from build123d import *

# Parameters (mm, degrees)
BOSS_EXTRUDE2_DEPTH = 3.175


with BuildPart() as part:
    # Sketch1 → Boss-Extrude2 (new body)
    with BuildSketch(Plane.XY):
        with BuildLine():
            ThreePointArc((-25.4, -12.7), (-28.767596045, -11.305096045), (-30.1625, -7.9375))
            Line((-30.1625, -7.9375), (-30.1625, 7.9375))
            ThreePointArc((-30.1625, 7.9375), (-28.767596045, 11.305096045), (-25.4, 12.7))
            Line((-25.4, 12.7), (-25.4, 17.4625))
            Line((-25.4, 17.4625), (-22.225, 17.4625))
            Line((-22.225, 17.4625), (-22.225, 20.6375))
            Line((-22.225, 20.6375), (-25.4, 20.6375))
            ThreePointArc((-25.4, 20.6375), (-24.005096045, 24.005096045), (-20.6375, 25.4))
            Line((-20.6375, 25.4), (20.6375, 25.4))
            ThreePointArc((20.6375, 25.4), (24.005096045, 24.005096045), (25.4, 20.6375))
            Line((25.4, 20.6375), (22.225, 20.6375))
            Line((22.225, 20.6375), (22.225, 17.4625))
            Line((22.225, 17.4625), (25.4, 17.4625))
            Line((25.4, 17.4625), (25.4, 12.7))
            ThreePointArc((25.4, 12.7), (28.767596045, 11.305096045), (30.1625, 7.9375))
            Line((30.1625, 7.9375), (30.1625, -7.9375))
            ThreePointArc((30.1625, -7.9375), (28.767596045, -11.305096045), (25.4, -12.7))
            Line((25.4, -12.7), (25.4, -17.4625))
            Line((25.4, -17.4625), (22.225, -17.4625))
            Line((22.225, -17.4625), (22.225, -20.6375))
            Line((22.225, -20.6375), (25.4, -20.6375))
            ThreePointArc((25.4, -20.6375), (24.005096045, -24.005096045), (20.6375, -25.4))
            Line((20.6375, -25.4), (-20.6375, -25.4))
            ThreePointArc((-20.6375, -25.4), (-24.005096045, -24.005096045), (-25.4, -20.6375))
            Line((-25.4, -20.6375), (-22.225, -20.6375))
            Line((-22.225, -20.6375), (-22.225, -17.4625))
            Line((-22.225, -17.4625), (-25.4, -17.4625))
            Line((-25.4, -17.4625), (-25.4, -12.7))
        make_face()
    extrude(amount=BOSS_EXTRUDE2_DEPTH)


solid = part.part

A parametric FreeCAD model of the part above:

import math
import FreeCAD as App
import Part
import Sketcher
Q = App.Units.Quantity

doc = App.newDocument("Part")
body = doc.addObject("PartDesign::Body", "Body")

# Sketch on XY plane
sketch1 = body.newObject("Sketcher::SketchObject", "Sketch")
sketch1.AttachmentSupport = (doc.getObject("XY_Plane"), [""])
sketch1.MapMode = "FlatFace"
sketch1.addGeometry(Part.ArcOfCircle(Part.Circle(App.Vector(-25.4, -7.9, 0), App.Vector(0, 0, 1), 4.8), math.radians(-180), math.radians(-90)), False)
sketch1.addGeometry(Part.LineSegment(App.Vector(-25.4, -12.7, 0), App.Vector(-25.4, -17.5, 0)), False)
sketch1.addGeometry(Part.LineSegment(App.Vector(-25.4, -17.5, 0), App.Vector(-22.2, -17.5, 0)), False)
sketch1.addGeometry(Part.LineSegment(App.Vector(-22.2, -17.5, 0), App.Vector(-22.2, -20.6, 0)), False)
sketch1.addGeometry(Part.LineSegment(App.Vector(-22.2, -20.6, 0), App.Vector(-25.4, -20.6, 0)), False)
sketch1.addGeometry(Part.ArcOfCircle(Part.Circle(App.Vector(-20.6, -20.6, 0), App.Vector(0, 0, 1), 4.8), math.radians(-180), math.radians(-90)), False)
sketch1.addGeometry(Part.LineSegment(App.Vector(-20.6, -25.4, 0), App.Vector(20.6, -25.4, 0)), False)
sketch1.addGeometry(Part.ArcOfCircle(Part.Circle(App.Vector(20.6, -20.6, 0), App.Vector(0, 0, 1), 4.8), math.radians(-90), math.radians(0)), False)
sketch1.addGeometry(Part.LineSegment(App.Vector(25.4, -20.6, 0), App.Vector(22.2, -20.6, 0)), False)
sketch1.addGeometry(Part.LineSegment(App.Vector(22.2, -20.6, 0), App.Vector(22.2, -17.5, 0)), False)
sketch1.addGeometry(Part.LineSegment(App.Vector(22.2, -17.5, 0), App.Vector(25.4, -17.5, 0)), False)
sketch1.addGeometry(Part.LineSegment(App.Vector(25.4, -17.5, 0), App.Vector(25.4, -12.7, 0)), False)
sketch1.addGeometry(Part.ArcOfCircle(Part.Circle(App.Vector(25.4, -7.9, 0), App.Vector(0, 0, 1), 4.8), math.radians(-90), math.radians(0)), False)
sketch1.addGeometry(Part.LineSegment(App.Vector(30.2, -7.9, 0), App.Vector(30.2, 7.9, 0)), False)
sketch1.addGeometry(Part.ArcOfCircle(Part.Circle(App.Vector(25.4, 7.9, 0), App.Vector(0, 0, 1), 4.8), math.radians(0), math.radians(90)), False)
sketch1.addGeometry(Part.LineSegment(App.Vector(25.4, 12.7, 0), App.Vector(25.4, 17.5, 0)), False)
sketch1.addGeometry(Part.LineSegment(App.Vector(25.4, 17.5, 0), App.Vector(22.2, 17.5, 0)), False)
sketch1.addGeometry(Part.LineSegment(App.Vector(22.2, 17.5, 0), App.Vector(22.2, 20.6, 0)), False)
sketch1.addGeometry(Part.LineSegment(App.Vector(22.2, 20.6, 0), App.Vector(25.4, 20.6, 0)), False)
sketch1.addGeometry(Part.ArcOfCircle(Part.Circle(App.Vector(20.6, 20.6, 0), App.Vector(0, 0, 1), 4.8), math.radians(0), math.radians(90)), False)
sketch1.addGeometry(Part.LineSegment(App.Vector(20.6, 25.4, 0), App.Vector(-20.6, 25.4, 0)), False)
sketch1.addGeometry(Part.ArcOfCircle(Part.Circle(App.Vector(-20.6, 20.6, 0), App.Vector(0, 0, 1), 4.8), math.radians(90), math.radians(180)), False)
sketch1.addGeometry(Part.LineSegment(App.Vector(-25.4, 20.6, 0), App.Vector(-22.2, 20.6, 0)), False)
sketch1.addGeometry(Part.LineSegment(App.Vector(-22.2, 20.6, 0), App.Vector(-22.2, 17.5, 0)), False)
sketch1.addGeometry(Part.LineSegment(App.Vector(-22.2, 17.5, 0), App.Vector(-25.4, 17.5, 0)), False)
sketch1.addGeometry(Part.LineSegment(App.Vector(-25.4, 17.5, 0), App.Vector(-25.4, 12.7, 0)), False)
sketch1.addGeometry(Part.ArcOfCircle(Part.Circle(App.Vector(-25.4, 7.9, 0), App.Vector(0, 0, 1), 4.8), math.radians(90), math.radians(180)), False)
sketch1.addGeometry(Part.LineSegment(App.Vector(-30.2, 7.9, 0), App.Vector(-30.2, -7.9, 0)), False)
sketch1.addConstraint(Sketcher.Constraint("Coincident", 0, 2, 1, 1))
sketch1.addConstraint(Sketcher.Constraint("Coincident", 1, 2, 2, 1))
sketch1.addConstraint(Sketcher.Constraint("Coincident", 2, 2, 3, 1))
sketch1.addConstraint(Sketcher.Constraint("Coincident", 3, 2, 4, 1))
sketch1.addConstraint(Sketcher.Constraint("Coincident", 4, 2, 5, 1))
sketch1.addConstraint(Sketcher.Constraint("Tangent", 5, 2, 6, 1))
sketch1.addConstraint(Sketcher.Constraint("Tangent", 6, 2, 7, 1))
sketch1.addConstraint(Sketcher.Constraint("Coincident", 7, 2, 8, 1))
sketch1.addConstraint(Sketcher.Constraint("Coincident", 8, 2, 9, 1))
sketch1.addConstraint(Sketcher.Constraint("Coincident", 9, 2, 10, 1))
sketch1.addConstraint(Sketcher.Constraint("Coincident", 10, 2, 11, 1))
sketch1.addConstraint(Sketcher.Constraint("Coincident", 11, 2, 12, 1))
sketch1.addConstraint(Sketcher.Constraint("Tangent", 12, 2, 13, 1))
sketch1.addConstraint(Sketcher.Constraint("Tangent", 13, 2, 14, 1))
sketch1.addConstraint(Sketcher.Constraint("Coincident", 14, 2, 15, 1))
sketch1.addConstraint(Sketcher.Constraint("Coincident", 15, 2, 16, 1))
sketch1.addConstraint(Sketcher.Constraint("Coincident", 16, 2, 17, 1))
sketch1.addConstraint(Sketcher.Constraint("Coincident", 17, 2, 18, 1))
sketch1.addConstraint(Sketcher.Constraint("Coincident", 18, 2, 19, 1))
sketch1.addConstraint(Sketcher.Constraint("Tangent", 19, 2, 20, 1))
sketch1.addConstraint(Sketcher.Constraint("Tangent", 20, 2, 21, 1))
sketch1.addConstraint(Sketcher.Constraint("Coincident", 21, 2, 22, 1))
sketch1.addConstraint(Sketcher.Constraint("Coincident", 22, 2, 23, 1))
sketch1.addConstraint(Sketcher.Constraint("Coincident", 23, 2, 24, 1))
sketch1.addConstraint(Sketcher.Constraint("Coincident", 24, 2, 25, 1))
sketch1.addConstraint(Sketcher.Constraint("Coincident", 25, 2, 26, 1))
sketch1.addConstraint(Sketcher.Constraint("Tangent", 26, 2, 27, 1))
sketch1.addConstraint(Sketcher.Constraint("Tangent", 27, 2, 0, 1))
sketch1.addConstraint(Sketcher.Constraint("Vertical", 1))
sketch1.addConstraint(Sketcher.Constraint("Horizontal", 2))
sketch1.addConstraint(Sketcher.Constraint("Vertical", 3))
sketch1.addConstraint(Sketcher.Constraint("Horizontal", 4))
sketch1.addConstraint(Sketcher.Constraint("Horizontal", 6))
sketch1.addConstraint(Sketcher.Constraint("Horizontal", 8))
sketch1.addConstraint(Sketcher.Constraint("Vertical", 9))
sketch1.addConstraint(Sketcher.Constraint("Horizontal", 10))
sketch1.addConstraint(Sketcher.Constraint("Vertical", 11))
sketch1.addConstraint(Sketcher.Constraint("Vertical", 13))
sketch1.addConstraint(Sketcher.Constraint("Vertical", 15))
sketch1.addConstraint(Sketcher.Constraint("Horizontal", 16))
sketch1.addConstraint(Sketcher.Constraint("Vertical", 17))
sketch1.addConstraint(Sketcher.Constraint("Horizontal", 18))
sketch1.addConstraint(Sketcher.Constraint("Horizontal", 20))
sketch1.addConstraint(Sketcher.Constraint("Horizontal", 22))
sketch1.addConstraint(Sketcher.Constraint("Vertical", 23))
sketch1.addConstraint(Sketcher.Constraint("Horizontal", 24))
sketch1.addConstraint(Sketcher.Constraint("Vertical", 25))
sketch1.addConstraint(Sketcher.Constraint("Vertical", 27))
sketch1.addConstraint(Sketcher.Constraint("Equal", 0, 5))
sketch1.addConstraint(Sketcher.Constraint("Equal", 5, 7))
sketch1.addConstraint(Sketcher.Constraint("Equal", 7, 12))
sketch1.addConstraint(Sketcher.Constraint("Equal", 12, 14))
sketch1.addConstraint(Sketcher.Constraint("Equal", 14, 19))
sketch1.addConstraint(Sketcher.Constraint("Equal", 19, 21))
sketch1.addConstraint(Sketcher.Constraint("Equal", 21, 26))
sketch1.addConstraint(Sketcher.Constraint("Symmetric", 0, 3, 14, 3, -1, 1))
sketch1.addConstraint(Sketcher.Constraint("Symmetric", 5, 3, 19, 3, -1, 1))
sketch1.addConstraint(Sketcher.Constraint("Symmetric", 1, 2, 15, 2, -1, 1))
sketch1.addConstraint(Sketcher.Constraint("Symmetric", 3, 2, 17, 2, -1, 1))
sketch1.addConstraint(Sketcher.Constraint("Symmetric", 7, 2, 21, 2, -1, 1))
sketch1.addConstraint(Sketcher.Constraint("Symmetric", 9, 2, 23, 2, -1, 1))
sketch1.addConstraint(Sketcher.Constraint("Symmetric", 11, 2, 25, 2, -1, 1))
sketch1.addConstraint(Sketcher.Constraint("Symmetric", 4, 2, 7, 2, -2))
sketch1.addConstraint(Sketcher.Constraint("Symmetric", 2, 2, 9, 2, -2))
sketch1.addConstraint(Sketcher.Constraint("Symmetric", 0, 2, 11, 2, -2))
sketch1.addConstraint(Sketcher.Constraint("Horizontal", 7, 3, 3, 2))
sketch1.addConstraint(Sketcher.Constraint("Vertical", 26, 3, 0, 2))
sketch1.addConstraint(Sketcher.Constraint("Vertical", 1, 2, 4, 2))
sketch1.addConstraint(Sketcher.Constraint("Equal", 24, 3))
sketch1.addConstraint(Sketcher.Constraint("DistanceX", 0, 3, -1, 1, Q("1 in")))
sketch1.addConstraint(Sketcher.Constraint("DistanceY", 5, 2, -1, 1, Q("1 in")))
sketch1.addConstraint(Sketcher.Constraint("Radius", 0, Q("0.1875 in")))
sketch1.addConstraint(Sketcher.Constraint("DistanceY", 1, 2, 26, 3, Q("1 in")))
sketch1.addConstraint(Sketcher.Constraint("DistanceY", 0, 2, -1, 1, Q("0.5 in")))
pad1 = body.newObject("PartDesign::Pad", "Pad")
pad1.Profile = sketch1
pad1.Length = Q("0.125 in")

doc.recompute()
